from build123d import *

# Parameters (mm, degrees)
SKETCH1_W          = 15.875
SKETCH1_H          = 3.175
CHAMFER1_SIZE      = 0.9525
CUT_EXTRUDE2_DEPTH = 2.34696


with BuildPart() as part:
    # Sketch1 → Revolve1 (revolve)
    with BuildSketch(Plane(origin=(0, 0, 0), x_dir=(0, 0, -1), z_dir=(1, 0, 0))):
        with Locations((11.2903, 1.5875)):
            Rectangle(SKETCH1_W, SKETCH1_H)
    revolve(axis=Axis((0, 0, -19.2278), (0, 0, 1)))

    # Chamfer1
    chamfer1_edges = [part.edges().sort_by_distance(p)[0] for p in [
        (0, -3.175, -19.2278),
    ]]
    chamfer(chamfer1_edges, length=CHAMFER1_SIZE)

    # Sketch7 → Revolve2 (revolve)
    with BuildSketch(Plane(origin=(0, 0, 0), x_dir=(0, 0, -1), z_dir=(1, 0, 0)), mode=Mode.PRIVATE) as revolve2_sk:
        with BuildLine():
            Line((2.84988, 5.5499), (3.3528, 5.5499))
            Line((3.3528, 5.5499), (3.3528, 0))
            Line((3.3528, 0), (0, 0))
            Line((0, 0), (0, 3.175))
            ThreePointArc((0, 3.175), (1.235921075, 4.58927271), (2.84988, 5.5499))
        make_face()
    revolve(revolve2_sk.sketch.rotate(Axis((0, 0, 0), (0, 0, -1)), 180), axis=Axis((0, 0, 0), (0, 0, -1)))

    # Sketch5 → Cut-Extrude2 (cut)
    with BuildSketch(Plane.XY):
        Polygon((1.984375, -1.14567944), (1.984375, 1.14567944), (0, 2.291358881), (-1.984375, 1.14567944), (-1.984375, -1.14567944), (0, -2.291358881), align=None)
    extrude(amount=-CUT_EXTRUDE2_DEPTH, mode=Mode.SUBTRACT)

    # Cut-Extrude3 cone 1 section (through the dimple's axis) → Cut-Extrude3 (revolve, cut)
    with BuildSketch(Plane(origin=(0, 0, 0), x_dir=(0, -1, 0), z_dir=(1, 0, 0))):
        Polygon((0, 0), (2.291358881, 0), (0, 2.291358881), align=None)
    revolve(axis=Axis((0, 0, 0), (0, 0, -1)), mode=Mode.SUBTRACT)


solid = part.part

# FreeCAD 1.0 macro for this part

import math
import FreeCAD as App
import Part
import Sketcher
from FreeCAD import Vector
Q = App.Units.Quantity


def edges_at(feature, points):
    """Names of the edges that pass closest to the given points."""
    edges = feature.Shape.Edges
    near = lambda p: min(range(len(edges)), key=lambda i: edges[i].distToShape(Part.Vertex(*p))[0])
    return sorted({f"Edge{near(p) + 1}" for p in points})

doc = App.newDocument("Part")
body = doc.addObject("PartDesign::Body", "Body")

sketch1 = body.newObject("Sketcher::SketchObject", "Sketch")
sketch1.AttachmentSupport = (doc.getObject("YZ_Plane"), [""])
sketch1.MapMode = "FlatFace"
sketch1.addGeometry(Part.LineSegment(Vector(3.175, -3.3528, 0), Vector(0, -3.3528, 0)), False)
sketch1.addGeometry(Part.LineSegment(Vector(0, -3.3528, 0), Vector(0, -19.2278, 0)), False)
sketch1.addGeometry(Part.LineSegment(Vector(0, -19.2278, 0), Vector(3.175, -19.2278, 0)), False)
sketch1.addGeometry(Part.LineSegment(Vector(3.175, -19.2278, 0), Vector(3.175, -3.3528, 0)), False)
sketch1.addConstraint(Sketcher.Constraint("Coincident", 0, 2, 1, 1))
sketch1.addConstraint(Sketcher.Constraint("Coincident", 1, 2, 2, 1))
sketch1.addConstraint(Sketcher.Constraint("Coincident", 2, 2, 3, 1))
sketch1.addConstraint(Sketcher.Constraint("Coincident", 3, 2, 0, 1))
sketch1.addConstraint(Sketcher.Constraint("Horizontal", 0))
sketch1.addConstraint(Sketcher.Constraint("Vertical", 1))
sketch1.addConstraint(Sketcher.Constraint("Horizontal", 2))
sketch1.addConstraint(Sketcher.Constraint("Vertical", 3))
sketch1.addConstraint(Sketcher.Constraint("PointOnObject", 0, 2, -2))
sketch1.addConstraint(Sketcher.Constraint("DistanceX", 0, 2, 0, 1, Q("0.125 in")))
sketch1.addConstraint(Sketcher.Constraint("DistanceY", 1, 2, 1, 1, Q("0.625 in")))
sketch1.addConstraint(Sketcher.Constraint("DistanceY", 0, 2, -1, 1, Q("0.132 in")))
revolution = body.newObject("PartDesign::Revolution", "Revolution")
revolution.Profile = sketch1
revolution.ReferenceAxis = (sketch1, ["V_Axis"])
revolution.Angle = 360
doc.recompute()

chamfer = body.newObject("PartDesign::Chamfer", "Chamfer")
chamfer.Base = (revolution, edges_at(revolution, [(0, -3.175, -19.228)]))
chamfer.Size = Q("0.0375 in")

sketch2 = body.newObject("Sketcher::SketchObject", "Sketch001")
sketch2.AttachmentSupport = (doc.getObject("YZ_Plane"), [""])
sketch2.MapMode = "FlatFace"
sketch2.addGeometry(Part.LineSegment(Vector(5.5499, -3.3528, 0), Vector(5.5499, -2.84988, 0)), False)
sketch2.addGeometry(Part.ArcOfCircle(Part.Circle(Vector(0, -5.060315, 0), Vector(0, 0, 1), 5.973894), math.radians(21.716589), math.radians(57.894553)), False)
sketch2.addGeometry(Part.LineSegment(Vector(3.175, 0, 0), Vector(0, 0, 0)), False)
sketch2.addGeometry(Part.LineSegment(Vector(0, 0, 0), Vector(0, -3.3528, 0)), False)
sketch2.addGeometry(Part.LineSegment(Vector(0, -3.3528, 0), Vector(5.5499, -3.3528, 0)), False)
sketch2.addConstraint(Sketcher.Constraint("Coincident", 0, 2, 1, 1))
sketch2.addConstraint(Sketcher.Constraint("Coincident", 1, 2, 2, 1))
sketch2.addConstraint(Sketcher.Constraint("Coincident", 2, 2, 3, 1))
sketch2.addConstraint(Sketcher.Constraint("Coincident", 3, 2, 4, 1))
sketch2.addConstraint(Sketcher.Constraint("Coincident", 4, 2, 0, 1))
sketch2.addConstraint(Sketcher.Constraint("Vertical", 0))
sketch2.addConstraint(Sketcher.Constraint("Horizontal", 2))
sketch2.addConstraint(Sketcher.Constraint("Vertical", 3))
sketch2.addConstraint(Sketcher.Constraint("Horizontal", 4))
sketch2.addConstraint(Sketcher.Constraint("Coincident", 2, 2, -1, 1))
sketch2.addConstraint(Sketcher.Constraint("PointOnObject", 1, 3, -2))
sketch2.addConstraint(Sketcher.Constraint("DistanceX", 2, 2, 2, 1, Q("0.125 in")))
sketch2.addConstraint(Sketcher.Constraint("DistanceY", 3, 2, 3, 1, Q("0.132 in")))
sketch2.addConstraint(Sketcher.Constraint("DistanceX", 4, 1, 4, 2, Q("0.2185 in")))
sketch2.addConstraint(Sketcher.Constraint("DistanceY", 0, 1, 0, 2, Q("0.0198 in")))
revolution2 = body.newObject("PartDesign::Revolution", "Revolution001")
revolution2.Profile = sketch2
revolution2.ReferenceAxis = (sketch2, ["V_Axis"])
revolution2.Angle = 360

sketch3 = body.newObject("Sketcher::SketchObject", "Sketch002")
sketch3.AttachmentSupport = (doc.getObject("XY_Plane"), [""])
sketch3.MapMode = "FlatFace"
sketch3.addGeometry(Part.LineSegment(Vector(1.984375, -1.145679, 0), Vector(1.984375, 1.145679, 0)), False)
sketch3.addGeometry(Part.LineSegment(Vector(1.984375, 1.145679, 0), Vector(0, 2.291359, 0)), False)
sketch3.addGeometry(Part.LineSegment(Vector(0, 2.291359, 0), Vector(-1.984375, 1.145679, 0)), False)
sketch3.addGeometry(Part.LineSegment(Vector(-1.984375, 1.145679, 0), Vector(-1.984375, -1.145679, 0)), False)
sketch3.addGeometry(Part.LineSegment(Vector(-1.984375, -1.145679, 0), Vector(0, -2.291359, 0)), False)
sketch3.addGeometry(Part.LineSegment(Vector(0, -2.291359, 0), Vector(1.984375, -1.145679, 0)), False)
sketch3.addConstraint(Sketcher.Constraint("Coincident", 0, 2, 1, 1))
sketch3.addConstraint(Sketcher.Constraint("Coincident", 1, 2, 2, 1))
sketch3.addConstraint(Sketcher.Constraint("Coincident", 2, 2, 3, 1))
sketch3.addConstraint(Sketcher.Constraint("Coincident", 3, 2, 4, 1))
sketch3.addConstraint(Sketcher.Constraint("Coincident", 4, 2, 5, 1))
sketch3.addConstraint(Sketcher.Constraint("Coincident", 5, 2, 0, 1))
sketch3.addConstraint(Sketcher.Constraint("Vertical", 0))
sketch3.addConstraint(Sketcher.Constraint("Vertical", 3))
sketch3.addConstraint(Sketcher.Constraint("Symmetric", 0, 2, 3, 2, -1, 1))
sketch3.addConstraint(Sketcher.Constraint("Symmetric", 1, 2, 4, 2, -1, 1))
sketch3.addConstraint(Sketcher.Constraint("PointOnObject", 1, 2, -2))
sketch3.addConstraint(Sketcher.Constraint("Parallel", 2, 5))
sketch3.addConstraint(Sketcher.Constraint("Horizontal", 0, 2, 2, 2))
sketch3.addConstraint(Sketcher.Constraint("Angle", 1, Q("150 deg")))
sketch3.addConstraint(Sketcher.Constraint("DistanceX", -1, 1, 0, 2, Q("0.078125 in")))
sketch3.addConstraint(Sketcher.Constraint("DistanceY", 0, 1, 0, 2, Q("2.291359 mm")))
pocket1 = body.newObject("PartDesign::Pocket", "Pocket")
pocket1.Profile = sketch3
pocket1.Length = Q("0.0924 in")

sketch4 = body.newObject("Sketcher::SketchObject", "Sketch003")
sketch4.AttachmentSupport = (doc.getObject("YZ_Plane"), [""])
sketch4.MapMode = "FlatFace"
sketch4.addGeometry(Part.LineSegment(Vector(0, 0, 0), Vector(-2.291359, 0, 0)), False)
sketch4.addGeometry(Part.LineSegment(Vector(-2.291359, 0, 0), Vector(0, -2.291359, 0)), False)
sketch4.addGeometry(Part.LineSegment(Vector(0, -2.291359, 0), Vector(0, 0, 0)), False)
sketch4.addConstraint(Sketcher.Constraint("Coincident", 0, 2, 1, 1))
sketch4.addConstraint(Sketcher.Constraint("Coincident", 1, 2, 2, 1))
sketch4.addConstraint(Sketcher.Constraint("Coincident", 2, 2, 0, 1))
sketch4.addConstraint(Sketcher.Constraint("Horizontal", 0))
sketch4.addConstraint(Sketcher.Constraint("Vertical", 2))
sketch4.addConstraint(Sketcher.Constraint("Coincident", 2, 2, -1, 1))
sketch4.addConstraint(Sketcher.Constraint("Equal", 0, 2))
sketch4.addConstraint(Sketcher.Constraint("DistanceX", 0, 2, 0, 1, Q("2.291359 mm")))
groove = body.newObject("PartDesign::Groove", "Groove")
groove.Profile = sketch4
groove.ReferenceAxis = (sketch4, ["V_Axis"])
groove.Angle = 360

doc.recompute()
